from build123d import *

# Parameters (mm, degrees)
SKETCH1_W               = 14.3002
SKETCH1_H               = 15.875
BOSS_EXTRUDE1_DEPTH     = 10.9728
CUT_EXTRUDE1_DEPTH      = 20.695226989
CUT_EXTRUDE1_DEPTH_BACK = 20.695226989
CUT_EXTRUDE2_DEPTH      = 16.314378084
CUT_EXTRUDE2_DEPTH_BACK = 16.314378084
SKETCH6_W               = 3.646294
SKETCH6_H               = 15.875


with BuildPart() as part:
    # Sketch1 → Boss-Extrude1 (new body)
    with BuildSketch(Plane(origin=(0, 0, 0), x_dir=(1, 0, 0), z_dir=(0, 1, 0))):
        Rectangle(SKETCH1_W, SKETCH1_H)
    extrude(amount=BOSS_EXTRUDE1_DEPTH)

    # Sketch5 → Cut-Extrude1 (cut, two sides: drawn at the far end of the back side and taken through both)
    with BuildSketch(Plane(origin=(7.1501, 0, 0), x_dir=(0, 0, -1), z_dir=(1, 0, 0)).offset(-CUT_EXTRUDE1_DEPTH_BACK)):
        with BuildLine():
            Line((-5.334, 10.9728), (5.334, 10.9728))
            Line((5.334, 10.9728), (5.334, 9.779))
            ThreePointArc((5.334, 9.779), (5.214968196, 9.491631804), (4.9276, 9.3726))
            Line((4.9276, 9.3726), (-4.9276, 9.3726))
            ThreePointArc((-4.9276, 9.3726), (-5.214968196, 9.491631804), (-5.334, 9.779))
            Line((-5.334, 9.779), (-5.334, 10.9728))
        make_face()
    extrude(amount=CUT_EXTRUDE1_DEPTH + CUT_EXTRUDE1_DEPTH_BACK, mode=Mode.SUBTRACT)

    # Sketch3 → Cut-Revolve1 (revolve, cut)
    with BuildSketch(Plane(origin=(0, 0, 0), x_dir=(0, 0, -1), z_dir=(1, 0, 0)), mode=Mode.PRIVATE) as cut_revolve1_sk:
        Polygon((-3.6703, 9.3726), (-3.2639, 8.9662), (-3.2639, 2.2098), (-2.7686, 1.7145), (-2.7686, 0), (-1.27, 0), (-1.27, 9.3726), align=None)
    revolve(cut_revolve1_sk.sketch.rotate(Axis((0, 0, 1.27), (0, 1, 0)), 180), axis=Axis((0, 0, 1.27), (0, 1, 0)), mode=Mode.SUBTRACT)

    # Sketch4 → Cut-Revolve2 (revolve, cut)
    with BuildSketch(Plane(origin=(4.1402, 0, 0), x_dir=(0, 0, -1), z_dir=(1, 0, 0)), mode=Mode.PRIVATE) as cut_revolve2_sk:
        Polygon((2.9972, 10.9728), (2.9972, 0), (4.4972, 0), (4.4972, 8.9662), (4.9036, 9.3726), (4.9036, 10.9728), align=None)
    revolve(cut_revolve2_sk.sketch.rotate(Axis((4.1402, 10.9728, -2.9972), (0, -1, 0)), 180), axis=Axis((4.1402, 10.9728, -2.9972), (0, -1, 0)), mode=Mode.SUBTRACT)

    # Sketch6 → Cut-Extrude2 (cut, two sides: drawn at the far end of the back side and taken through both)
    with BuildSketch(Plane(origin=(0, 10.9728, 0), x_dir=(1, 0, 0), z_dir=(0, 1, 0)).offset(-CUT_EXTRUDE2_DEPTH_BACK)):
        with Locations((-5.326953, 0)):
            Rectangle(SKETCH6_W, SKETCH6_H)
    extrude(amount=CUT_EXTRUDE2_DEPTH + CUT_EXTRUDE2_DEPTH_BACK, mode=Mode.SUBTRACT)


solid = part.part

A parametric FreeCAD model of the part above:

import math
import FreeCAD as App
import Part
import Sketcher
Q = App.Units.Quantity

doc = App.newDocument("Part")
body = doc.addObject("PartDesign::Body", "Body")

# Sketch on XZ plane
sketch1 = body.newObject("Sketcher::SketchObject", "Sketch")
sketch1.AttachmentSupport = (doc.getObject("XZ_Plane"), [""])
sketch1.MapMode = "FlatFace"
sketch1.addGeometry(Part.LineSegment(App.Vector(-7.1501, -7.9375, 0), App.Vector(-7.1501, 7.9375, 0)), False)
sketch1.addGeometry(Part.LineSegment(App.Vector(-7.1501, 7.9375, 0), App.Vector(7.1501, 7.9375, 0)), False)
sketch1.addGeometry(Part.LineSegment(App.Vector(7.1501, 7.9375, 0), App.Vector(7.1501, -7.9375, 0)), False)
sketch1.addGeometry(Part.LineSegment(App.Vector(7.1501, -7.9375, 0), App.Vector(-7.1501, -7.9375, 0)), False)
sketch1.addConstraint(Sketcher.Constraint("Coincident", 0, 2, 1, 1))
sketch1.addConstraint(Sketcher.Constraint("Coincident", 1, 2, 2, 1))
sketch1.addConstraint(Sketcher.Constraint("Coincident", 2, 2, 3, 1))
sketch1.addConstraint(Sketcher.Constraint("Coincident", 3, 2, 0, 1))
sketch1.addConstraint(Sketcher.Constraint("Vertical", 0))
sketch1.addConstraint(Sketcher.Constraint("Horizontal", 1))
sketch1.addConstraint(Sketcher.Constraint("Vertical", 2))
sketch1.addConstraint(Sketcher.Constraint("Horizontal", 3))
sketch1.addConstraint(Sketcher.Constraint("Symmetric", 0, 2, 2, 2, -1, 1))
sketch1.addConstraint(Sketcher.Constraint("DistanceX", 1, 1, 1, 2, Q("0.563 in")))
sketch1.addConstraint(Sketcher.Constraint("DistanceY", 0, 1, 0, 2, Q("0.625 in")))
pad1 = body.newObject("PartDesign::Pad", "Pad")
pad1.Profile = sketch1
pad1.Length = Q("0.432 in")
pad1.Reversed = True

# Sketch on YZ plane
sketch2 = body.newObject("Sketcher::SketchObject", "Sketch001")
sketch2.AttachmentSupport = (doc.getObject("YZ_Plane"), [""])
sketch2.MapMode = "FlatFace"
sketch2.AttachmentOffset = App.Placement(App.Vector(0, 0, 0.2815 * 25.4), App.Rotation())
sketch2.addGeometry(Part.LineSegment(App.Vector(10.9728, -5.334, 0), App.Vector(10.9728, 5.334, 0)), False)
sketch2.addGeometry(Part.LineSegment(App.Vector(10.9728, 5.334, 0), App.Vector(9.779, 5.334, 0)), False)
sketch2.addGeometry(Part.ArcOfCircle(Part.Circle(App.Vector(9.779, 4.9276, 0), App.Vector(0, 0, 1), 0.4064), math.radians(90), math.radians(180)), False)
sketch2.addGeometry(Part.LineSegment(App.Vector(9.3726, 4.9276, 0), App.Vector(9.3726, -4.9276, 0)), False)
sketch2.addGeometry(Part.ArcOfCircle(Part.Circle(App.Vector(9.779, -4.9276, 0), App.Vector(0, 0, 1), 0.4064), math.radians(180), math.radians(270)), False)
sketch2.addGeometry(Part.LineSegment(App.Vector(9.779, -5.334, 0), App.Vector(10.9728, -5.334, 0)), False)
sketch2.addConstraint(Sketcher.Constraint("Coincident", 0, 2, 1, 1))
sketch2.addConstraint(Sketcher.Constraint("Tangent", 1, 2, 2, 1))
sketch2.addConstraint(Sketcher.Constraint("Tangent", 2, 2, 3, 1))
sketch2.addConstraint(Sketcher.Constraint("Tangent", 3, 2, 4, 1))
sketch2.addConstraint(Sketcher.Constraint("Tangent", 4, 2, 5, 1))
sketch2.addConstraint(Sketcher.Constraint("Coincident", 5, 2, 0, 1))
sketch2.addConstraint(Sketcher.Constraint("Vertical", 0))
sketch2.addConstraint(Sketcher.Constraint("Horizontal", 1))
sketch2.addConstraint(Sketcher.Constraint("Vertical", 3))
sketch2.addConstraint(Sketcher.Constraint("Horizontal", 5))
sketch2.addConstraint(Sketcher.Constraint("Equal", 2, 4))
sketch2.addConstraint(Sketcher.Constraint("Radius", 2, Q("0.016 in")))
sketch2.addConstraint(Sketcher.Constraint("DistanceY", 0, 1, 0, 2, Q("0.42 in")))
sketch2.addConstraint(Sketcher.Constraint("DistanceX", 1, 2, 1, 1, Q("0.047 in")))
sketch2.addConstraint(Sketcher.Constraint("DistanceY", -1, 1, 0, 2, Q("0.21 in")))
sketch2.addConstraint(Sketcher.Constraint("DistanceX", -1, 1, 2, 3, Q("0.385 in")))
pocket1 = body.newObject("PartDesign::Pocket", "Pocket")
pocket1.Profile = sketch2
pocket1.Type = "ThroughAll"
pocket1.Midplane = True

# Sketch on YZ plane
sketch3 = body.newObject("Sketcher::SketchObject", "Sketch002")
sketch3.AttachmentSupport = (doc.getObject("YZ_Plane"), [""])
sketch3.MapMode = "FlatFace"
sketch3.addGeometry(Part.LineSegment(App.Vector(9.3726, 3.6703, 0), App.Vector(8.9662, 3.2639, 0)), False)
sketch3.addGeometry(Part.LineSegment(App.Vector(8.9662, 3.2639, 0), App.Vector(2.2098, 3.2639, 0)), False)
sketch3.addGeometry(Part.LineSegment(App.Vector(2.2098, 3.2639, 0), App.Vector(1.7145, 2.7686, 0)), False)
sketch3.addGeometry(Part.LineSegment(App.Vector(1.7145, 2.7686, 0), App.Vector(0, 2.7686, 0)), False)
sketch3.addGeometry(Part.LineSegment(App.Vector(0, 2.7686, 0), App.Vector(0, 1.27, 0)), False)
sketch3.addGeometry(Part.LineSegment(App.Vector(0, 1.27, 0), App.Vector(9.3726, 1.27, 0)), False)
sketch3.addGeometry(Part.LineSegment(App.Vector(9.3726, 1.27, 0), App.Vector(9.3726, 3.6703, 0)), False)
sketch3.addGeometry(Part.LineSegment(App.Vector(0, 1.27, 0), App.Vector(9.3726, 1.27, 0)), True)  # axis
sketch3.addConstraint(Sketcher.Constraint("Coincident", 0, 2, 1, 1))
sketch3.addConstraint(Sketcher.Constraint("Coincident", 1, 2, 2, 1))
sketch3.addConstraint(Sketcher.Constraint("Coincident", 2, 2, 3, 1))
sketch3.addConstraint(Sketcher.Constraint("Coincident", 3, 2, 4, 1))
sketch3.addConstraint(Sketcher.Constraint("Coincident", 4, 2, 5, 1))
sketch3.addConstraint(Sketcher.Constraint("Coincident", 5, 2, 6, 1))
sketch3.addConstraint(Sketcher.Constraint("Coincident", 6, 2, 0, 1))
sketch3.addConstraint(Sketcher.Constraint("Horizontal", 1))
sketch3.addConstraint(Sketcher.Constraint("Horizontal", 3))
sketch3.addConstraint(Sketcher.Constraint("Vertical", 4))
sketch3.addConstraint(Sketcher.Constraint("Horizontal", 5))
sketch3.addConstraint(Sketcher.Constraint("Vertical", 6))
sketch3.addConstraint(Sketcher.Constraint("Horizontal", 7))
sketch3.addConstraint(Sketcher.Constraint("Coincident", 7, 1, 4, 2))
sketch3.addConstraint(Sketcher.Constraint("PointOnObject", 3, 2, -2))
sketch3.addConstraint(Sketcher.Constraint("Parallel", 0, 2))
sketch3.addConstraint(Sketcher.Constraint("Vertical", 6, 2, 7, 2))
sketch3.addConstraint(Sketcher.Constraint("Angle", 0, Q("-135 deg")))
sketch3.addConstraint(Sketcher.Constraint("DistanceX", 1, 2, 1, 1, Q("0.266 in")))
sketch3.addConstraint(Sketcher.Constraint("DistanceX", 5, 1, 5, 2, Q("0.369 in")))
sketch3.addConstraint(Sketcher.Constraint("DistanceY", 4, 2, 4, 1, Q("0.059 in")))
sketch3.addConstraint(Sketcher.Constraint("DistanceY", -1, 1, 4, 2, Q("0.05 in")))
sketch3.addConstraint(Sketcher.Constraint("DistanceX", 3, 2, 3, 1, Q("0.0675 in")))
sketch3.addConstraint(Sketcher.Constraint("DistanceX", -1, 1, 0, 2, Q("0.353 in")))
groove = body.newObject("PartDesign::Groove", "Groove")
groove.Profile = sketch3
groove.ReferenceAxis = (sketch3, ["Axis0"])
groove.Angle = 360

# Sketch on YZ plane
sketch4 = body.newObject("Sketcher::SketchObject", "Sketch003")
sketch4.AttachmentSupport = (doc.getObject("YZ_Plane"), [""])
sketch4.MapMode = "FlatFace"
sketch4.AttachmentOffset = App.Placement(App.Vector(0, 0, 0.163 * 25.4), App.Rotation())
sketch4.addGeometry(Part.LineSegment(App.Vector(10.9728, -2.9972, 0), App.Vector(0, -2.9972, 0)), False)
sketch4.addGeometry(Part.LineSegment(App.Vector(0, -2.9972, 0), App.Vector(0, -4.4972, 0)), False)
sketch4.addGeometry(Part.LineSegment(App.Vector(0, -4.4972, 0), App.Vector(8.9662, -4.4972, 0)), False)
sketch4.addGeometry(Part.LineSegment(App.Vector(8.9662, -4.4972, 0), App.Vector(9.3726, -4.9036, 0)), False)
sketch4.addGeometry(Part.LineSegment(App.Vector(9.3726, -4.9036, 0), App.Vector(10.9728, -4.9036, 0)), False)
sketch4.addGeometry(Part.LineSegment(App.Vector(10.9728, -4.9036, 0), App.Vector(10.9728, -2.9972, 0)), False)
sketch4.addGeometry(Part.LineSegment(App.Vector(10.9728, -2.9972, 0), App.Vector(0, -2.9972, 0)), True)  # axis
sketch4.addConstraint(Sketcher.Constraint("Coincident", 0, 2, 1, 1))
sketch4.addConstraint(Sketcher.Constraint("Coincident", 1, 2, 2, 1))
sketch4.addConstraint(Sketcher.Constraint("Coincident", 2, 2, 3, 1))
sketch4.addConstraint(Sketcher.Constraint("Coincident", 3, 2, 4, 1))
sketch4.addConstraint(Sketcher.Constraint("Coincident", 4, 2, 5, 1))
sketch4.addConstraint(Sketcher.Constraint("Coincident", 5, 2, 0, 1))
sketch4.addConstraint(Sketcher.Constraint("Horizontal", 0))
sketch4.addConstraint(Sketcher.Constraint("Vertical", 1))
sketch4.addConstraint(Sketcher.Constraint("Horizontal", 2))
sketch4.addConstraint(Sketcher.Constraint("Horizontal", 4))
sketch4.addConstraint(Sketcher.Constraint("Vertical", 5))
sketch4.addConstraint(Sketcher.Constraint("Horizontal", 6))
sketch4.addConstraint(Sketcher.Constraint("Coincident", 6, 1, 5, 2))
sketch4.addConstraint(Sketcher.Constraint("PointOnObject", 0, 2, -2))
sketch4.addConstraint(Sketcher.Constraint("PointOnObject", 6, 2, -2))
sketch4.addConstraint(Sketcher.Constraint("Angle", 3, Q("-45 deg")))
sketch4.addConstraint(Sketcher.Constraint("DistanceX", 0, 2, 0, 1, Q("0.432 in")))
sketch4.addConstraint(Sketcher.Constraint("DistanceX", 2, 1, 2, 2, Q("0.353 in")))
sketch4.addConstraint(Sketcher.Constraint("DistanceX", 4, 1, 4, 2, Q("0.063 in")))
sketch4.addConstraint(Sketcher.Constraint("DistanceY", 0, 2, -1, 1, Q("0.118 in")))
sketch4.addConstraint(Sketcher.Constraint("DistanceY", 1, 2, 1, 1, Q("1.5 mm")))
groove2 = body.newObject("PartDesign::Groove", "Groove001")
groove2.Profile = sketch4
groove2.ReferenceAxis = (sketch4, ["Axis0"])
groove2.Angle = 360

# Sketch on XZ plane
sketch5 = body.newObject("Sketcher::SketchObject", "Sketch004")
sketch5.AttachmentSupport = (doc.getObject("XZ_Plane"), [""])
sketch5.MapMode = "FlatFace"
sketch5.AttachmentOffset = App.Placement(App.Vector(0, 0, -0.432 * 25.4), App.Rotation())
sketch5.addGeometry(Part.LineSegment(App.Vector(-7.1501, -7.9375, 0), App.Vector(-7.1501, 7.9375, 0)), False)
sketch5.addGeometry(Part.LineSegment(App.Vector(-7.1501, 7.9375, 0), App.Vector(-3.503806, 7.9375, 0)), False)
sketch5.addGeometry(Part.LineSegment(App.Vector(-3.503806, 7.9375, 0), App.Vector(-3.503806, -7.9375, 0)), False)
sketch5.addGeometry(Part.LineSegment(App.Vector(-3.503806, -7.9375, 0), App.Vector(-7.1501, -7.9375, 0)), False)
sketch5.addConstraint(Sketcher.Constraint("Coincident", 0, 2, 1, 1))
sketch5.addConstraint(Sketcher.Constraint("Coincident", 1, 2, 2, 1))
sketch5.addConstraint(Sketcher.Constraint("Coincident", 2, 2, 3, 1))
sketch5.addConstraint(Sketcher.Constraint("Coincident", 3, 2, 0, 1))
sketch5.addConstraint(Sketcher.Constraint("Vertical", 0))
sketch5.addConstraint(Sketcher.Constraint("Horizontal", 1))
sketch5.addConstraint(Sketcher.Constraint("Vertical", 2))
sketch5.addConstraint(Sketcher.Constraint("Horizontal", 3))
sketch5.addConstraint(Sketcher.Constraint("DistanceY", 0, 1, 0, 2, Q("0.625 in")))
sketch5.addConstraint(Sketcher.Constraint("DistanceY", -1, 1, 0, 2, Q("0.3125 in")))
sketch5.addConstraint(Sketcher.Constraint("DistanceX", 0, 2, -1, 1, Q("0.2815 in")))
sketch5.addConstraint(Sketcher.Constraint("DistanceX", 1, 1, 1, 2, Q("3.646294 mm")))
pocket2 = body.newObject("PartDesign::Pocket", "Pocket001")
pocket2.Profile = sketch5
pocket2.Type = "ThroughAll"
pocket2.Midplane = True

doc.recompute()
